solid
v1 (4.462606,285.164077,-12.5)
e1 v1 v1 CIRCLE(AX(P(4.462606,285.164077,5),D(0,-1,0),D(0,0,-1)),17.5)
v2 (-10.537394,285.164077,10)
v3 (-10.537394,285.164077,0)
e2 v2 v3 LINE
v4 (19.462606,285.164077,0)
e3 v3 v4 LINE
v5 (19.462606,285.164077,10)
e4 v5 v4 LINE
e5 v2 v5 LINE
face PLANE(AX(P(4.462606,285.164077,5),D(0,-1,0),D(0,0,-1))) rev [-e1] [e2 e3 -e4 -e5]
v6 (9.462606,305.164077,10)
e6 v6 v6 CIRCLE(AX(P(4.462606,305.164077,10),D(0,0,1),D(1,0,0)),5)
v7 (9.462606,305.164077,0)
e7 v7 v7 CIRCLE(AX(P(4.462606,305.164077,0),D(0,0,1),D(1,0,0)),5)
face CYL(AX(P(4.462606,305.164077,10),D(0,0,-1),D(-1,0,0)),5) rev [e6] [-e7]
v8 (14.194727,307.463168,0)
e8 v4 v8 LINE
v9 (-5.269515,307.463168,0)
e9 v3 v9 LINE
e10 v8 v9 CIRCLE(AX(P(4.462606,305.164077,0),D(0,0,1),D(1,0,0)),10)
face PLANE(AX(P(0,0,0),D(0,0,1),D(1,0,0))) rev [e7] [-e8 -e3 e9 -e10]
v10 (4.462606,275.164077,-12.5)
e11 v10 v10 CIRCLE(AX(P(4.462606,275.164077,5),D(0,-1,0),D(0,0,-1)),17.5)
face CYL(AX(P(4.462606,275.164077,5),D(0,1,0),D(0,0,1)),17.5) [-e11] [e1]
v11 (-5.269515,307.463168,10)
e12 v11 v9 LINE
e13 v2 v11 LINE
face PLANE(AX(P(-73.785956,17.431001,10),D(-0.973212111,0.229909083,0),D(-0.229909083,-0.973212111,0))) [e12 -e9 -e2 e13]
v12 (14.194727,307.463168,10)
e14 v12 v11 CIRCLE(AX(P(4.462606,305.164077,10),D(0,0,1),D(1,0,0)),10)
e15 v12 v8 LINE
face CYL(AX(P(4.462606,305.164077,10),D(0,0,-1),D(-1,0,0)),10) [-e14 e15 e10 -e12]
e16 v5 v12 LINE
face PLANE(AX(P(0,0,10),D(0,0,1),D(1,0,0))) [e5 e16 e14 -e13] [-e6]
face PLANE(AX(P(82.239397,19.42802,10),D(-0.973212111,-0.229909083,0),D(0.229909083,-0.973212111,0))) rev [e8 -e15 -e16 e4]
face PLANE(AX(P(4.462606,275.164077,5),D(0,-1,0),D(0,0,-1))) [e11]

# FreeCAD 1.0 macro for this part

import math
import FreeCAD as App
import Part
import Sketcher

doc = App.newDocument("Part")
body = doc.addObject("PartDesign::Body", "Body")

sketch1 = body.newObject("Sketcher::SketchObject", "Sketch")
sketch1.AttachmentSupport = (doc.getObject("XY_Plane"), [""])
sketch1.MapMode = "FlatFace"
sketch1.addGeometry(Part.LineSegment(App.Vector(-5, 307, 0), App.Vector(-11, 285, 0)), False)
sketch1.addGeometry(Part.LineSegment(App.Vector(-11, 285, 0), App.Vector(-11, 280, 0)), False)
sketch1.addGeometry(Part.LineSegment(App.Vector(-11, 280, 0), App.Vector(19, 280, 0)), False)
sketch1.addGeometry(Part.LineSegment(App.Vector(19, 280, 0), App.Vector(19, 285, 0)), False)
sketch1.addGeometry(Part.LineSegment(App.Vector(19, 285, 0), App.Vector(14, 307, 0)), False)
sketch1.addGeometry(Part.ArcOfCircle(Part.Circle(App.Vector(4, 305, 0), App.Vector(0, 0, 1), 10), math.radians(13), math.radians(167)), False)
sketch1.addGeometry(Part.Circle(App.Vector(4, 305, 0), App.Vector(0, 0, 1), 5), False)
sketch1.addConstraint(Sketcher.Constraint("Coincident", 0, 2, 1, 1))
sketch1.addConstraint(Sketcher.Constraint("Coincident", 1, 2, 2, 1))
sketch1.addConstraint(Sketcher.Constraint("Coincident", 2, 2, 3, 1))
sketch1.addConstraint(Sketcher.Constraint("Coincident", 3, 2, 4, 1))
sketch1.addConstraint(Sketcher.Constraint("Tangent", 4, 2, 5, 1))
sketch1.addConstraint(Sketcher.Constraint("Tangent", 5, 2, 0, 1))
sketch1.addConstraint(Sketcher.Constraint("Vertical", 1))
sketch1.addConstraint(Sketcher.Constraint("Horizontal", 2))
sketch1.addConstraint(Sketcher.Constraint("Vertical", 3))
sketch1.addConstraint(Sketcher.Constraint("Coincident", 6, 3, 5, 3))
sketch1.addConstraint(Sketcher.Constraint("Horizontal", 0, 2, 3, 2))
sketch1.addConstraint(Sketcher.Constraint("Horizontal", 4, 2, 5, 2))
sketch1.addConstraint(Sketcher.Constraint("Diameter", 6, 10.0))
sketch1.addConstraint(Sketcher.Constraint("Radius", 5, 10.0))
sketch1.addConstraint(Sketcher.Constraint("DistanceX", 2, 1, 2, 2, 30.0))
sketch1.addConstraint(Sketcher.Constraint("DistanceY", 1, 2, 1, 1, 5.0))
sketch1.addConstraint(Sketcher.Constraint("DistanceY", 0, 2, 5, 3, 20.0))
sketch1.addConstraint(Sketcher.Constraint("DistanceX", -1, 1, 5, 3, 4.462606))
sketch1.addConstraint(Sketcher.Constraint("DistanceY", -1, 1, 5, 3, 305.164077))
pad1 = body.newObject("PartDesign::Pad", "Pad")
pad1.Profile = sketch1
pad1.Length = 10

sketch2 = body.newObject("Sketcher::SketchObject", "Sketch001")
sketch2.AttachmentSupport = (doc.getObject("XZ_Plane"), [""])
sketch2.MapMode = "FlatFace"
sketch2.AttachmentOffset = App.Placement(App.Vector(0, 0, -280.164077), App.Rotation())
sketch2.addGeometry(Part.Circle(App.Vector(4, 5, 0), App.Vector(0, 0, 1), 18), False)
sketch2.addConstraint(Sketcher.Constraint("Diameter", 0, 35.0))
sketch2.addConstraint(Sketcher.Constraint("DistanceY", -1, 1, 0, 3, 5.0))
sketch2.addConstraint(Sketcher.Constraint("DistanceX", -1, 1, 0, 3, 4.462606))
pad2 = body.newObject("PartDesign::Pad", "Pad001")
pad2.Profile = sketch2
pad2.Type = "TwoLengths"
pad2.Length = 5
pad2.Length2 = 5

doc.recompute()
